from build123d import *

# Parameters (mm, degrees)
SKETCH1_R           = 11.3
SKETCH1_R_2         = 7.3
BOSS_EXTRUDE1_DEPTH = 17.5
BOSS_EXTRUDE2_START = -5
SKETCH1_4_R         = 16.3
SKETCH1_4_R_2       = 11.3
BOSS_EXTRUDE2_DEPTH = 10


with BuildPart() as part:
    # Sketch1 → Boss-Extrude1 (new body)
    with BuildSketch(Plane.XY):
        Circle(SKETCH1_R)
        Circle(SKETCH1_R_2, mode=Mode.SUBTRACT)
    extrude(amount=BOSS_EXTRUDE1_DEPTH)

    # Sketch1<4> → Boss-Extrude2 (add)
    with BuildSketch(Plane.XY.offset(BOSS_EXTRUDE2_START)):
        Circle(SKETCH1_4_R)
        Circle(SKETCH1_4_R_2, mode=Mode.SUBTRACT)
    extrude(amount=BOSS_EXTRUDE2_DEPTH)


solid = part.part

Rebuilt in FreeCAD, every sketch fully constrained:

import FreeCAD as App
import Part
import Sketcher
Q = App.Units.Quantity

doc = App.newDocument("Part")
body = doc.addObject("PartDesign::Body", "Body")

# Sketch on XY plane
sketch1 = body.newObject("Sketcher::SketchObject", "Sketch")
sketch1.AttachmentSupport = (doc.getObject("XY_Plane"), [""])
sketch1.MapMode = "FlatFace"
sketch1.addGeometry([
    Part.Circle(App.Vector(0, 0, 0), App.Vector(0, 0, 1), 11.3),
    Part.Circle(App.Vector(0, 0, 0), App.Vector(0, 0, 1), 7.3),
], False)
sketch1.addConstraint([
    Sketcher.Constraint("Coincident", 0, 3, -1, 1),
    Sketcher.Constraint("Coincident", 1, 3, -1, 1),
    Sketcher.Constraint("Diameter", 0, Q("22.6 mm")),
    Sketcher.Constraint("Diameter", 1, Q("14.6 mm")),
])
pad1 = body.newObject("PartDesign::Pad", "Pad")
pad1.Profile = sketch1
pad1.Length = 17.5

# Sketch on XY plane
sketch2 = body.newObject("Sketcher::SketchObject", "Sketch001")
sketch2.AttachmentSupport = (doc.getObject("XY_Plane"), [""])
sketch2.MapMode = "FlatFace"
sketch2.AttachmentOffset = App.Placement(App.Vector(0, 0, -5), App.Rotation())
sketch2.addGeometry([
    Part.Circle(App.Vector(0, 0, 0), App.Vector(0, 0, 1), 16.3),
    Part.Circle(App.Vector(0, 0, 0), App.Vector(0, 0, 1), 11.3),
], False)
sketch2.addConstraint([
    Sketcher.Constraint("Coincident", 0, 3, -1, 1),
    Sketcher.Constraint("Coincident", 1, 3, -1, 1),
    Sketcher.Constraint("Diameter", 0, Q("32.6 mm")),
    Sketcher.Constraint("Diameter", 1, Q("22.6 mm")),
])
pad2 = body.newObject("PartDesign::Pad", "Pad001")
pad2.Profile = sketch2
pad2.Length = 10

doc.recompute()
